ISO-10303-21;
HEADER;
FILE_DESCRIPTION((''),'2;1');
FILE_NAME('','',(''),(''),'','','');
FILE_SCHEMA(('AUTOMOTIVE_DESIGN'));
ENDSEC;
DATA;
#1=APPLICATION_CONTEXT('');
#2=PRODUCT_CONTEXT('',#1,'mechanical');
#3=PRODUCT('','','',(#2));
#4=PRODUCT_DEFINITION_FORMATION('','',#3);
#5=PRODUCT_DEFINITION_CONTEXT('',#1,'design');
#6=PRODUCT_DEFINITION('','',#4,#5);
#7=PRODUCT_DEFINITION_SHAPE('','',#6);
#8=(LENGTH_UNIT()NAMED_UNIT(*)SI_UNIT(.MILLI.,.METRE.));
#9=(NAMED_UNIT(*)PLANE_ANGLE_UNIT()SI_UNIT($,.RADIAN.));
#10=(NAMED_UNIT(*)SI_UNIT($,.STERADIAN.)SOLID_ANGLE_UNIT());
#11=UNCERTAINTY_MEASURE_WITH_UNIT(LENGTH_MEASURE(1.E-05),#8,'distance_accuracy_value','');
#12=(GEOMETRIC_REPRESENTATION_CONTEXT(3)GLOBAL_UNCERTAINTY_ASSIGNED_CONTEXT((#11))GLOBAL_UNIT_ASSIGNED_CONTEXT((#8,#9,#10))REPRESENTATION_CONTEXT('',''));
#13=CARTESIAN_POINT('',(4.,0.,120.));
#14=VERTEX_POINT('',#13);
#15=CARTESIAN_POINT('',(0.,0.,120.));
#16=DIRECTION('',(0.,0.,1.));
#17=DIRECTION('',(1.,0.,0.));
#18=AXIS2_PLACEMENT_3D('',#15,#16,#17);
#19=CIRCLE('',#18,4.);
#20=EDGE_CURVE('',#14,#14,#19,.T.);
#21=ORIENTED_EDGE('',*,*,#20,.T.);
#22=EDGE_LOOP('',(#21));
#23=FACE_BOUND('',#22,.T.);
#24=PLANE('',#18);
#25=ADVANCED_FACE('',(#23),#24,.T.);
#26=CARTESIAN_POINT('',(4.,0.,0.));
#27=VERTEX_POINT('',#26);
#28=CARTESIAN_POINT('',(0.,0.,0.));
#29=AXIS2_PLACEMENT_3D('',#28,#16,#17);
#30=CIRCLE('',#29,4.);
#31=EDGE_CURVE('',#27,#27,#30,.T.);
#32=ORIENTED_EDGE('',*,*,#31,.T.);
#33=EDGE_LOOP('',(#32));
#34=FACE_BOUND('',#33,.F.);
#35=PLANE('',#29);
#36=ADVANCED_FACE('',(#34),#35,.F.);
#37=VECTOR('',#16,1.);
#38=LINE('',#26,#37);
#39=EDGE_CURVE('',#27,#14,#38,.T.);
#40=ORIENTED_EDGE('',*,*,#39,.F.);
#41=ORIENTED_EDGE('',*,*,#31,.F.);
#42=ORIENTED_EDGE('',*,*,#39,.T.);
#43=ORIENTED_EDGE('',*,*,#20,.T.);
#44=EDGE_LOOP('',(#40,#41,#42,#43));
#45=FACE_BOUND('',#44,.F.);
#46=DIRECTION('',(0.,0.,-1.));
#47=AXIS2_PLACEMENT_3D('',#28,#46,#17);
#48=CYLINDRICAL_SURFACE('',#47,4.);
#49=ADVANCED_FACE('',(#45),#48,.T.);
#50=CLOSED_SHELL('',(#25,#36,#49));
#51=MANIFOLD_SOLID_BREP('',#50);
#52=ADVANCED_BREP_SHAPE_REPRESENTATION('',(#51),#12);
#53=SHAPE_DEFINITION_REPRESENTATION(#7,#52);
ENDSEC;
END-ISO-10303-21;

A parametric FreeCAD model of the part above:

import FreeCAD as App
import Part
import Sketcher
from FreeCAD import Vector
Q = App.Units.Quantity

doc = App.newDocument("Part")
body = doc.addObject("PartDesign::Body", "Body")

# Sketch on XY plane
sketch1 = doc.addObject("Sketcher::SketchObject", "Sketch")
body.addObject(sketch1)
sketch1.AttachmentSupport = (doc.XY_Plane, [""])
sketch1.MapMode = "FlatFace"
sketch1.addGeometry(Part.Circle(Vector(0, 0, 0), Vector(0, 0, 1), 4), False)
sketch1.addConstraint([
    Sketcher.Constraint("Coincident", 0, 3, -1, 1),
    Sketcher.Constraint("Diameter", 0, Q("8 mm")),
])
pad1 = doc.addObject("PartDesign::Pad", "Pad")
body.addObject(pad1)
pad1.Profile = sketch1
pad1.Length = 120

doc.recompute()
